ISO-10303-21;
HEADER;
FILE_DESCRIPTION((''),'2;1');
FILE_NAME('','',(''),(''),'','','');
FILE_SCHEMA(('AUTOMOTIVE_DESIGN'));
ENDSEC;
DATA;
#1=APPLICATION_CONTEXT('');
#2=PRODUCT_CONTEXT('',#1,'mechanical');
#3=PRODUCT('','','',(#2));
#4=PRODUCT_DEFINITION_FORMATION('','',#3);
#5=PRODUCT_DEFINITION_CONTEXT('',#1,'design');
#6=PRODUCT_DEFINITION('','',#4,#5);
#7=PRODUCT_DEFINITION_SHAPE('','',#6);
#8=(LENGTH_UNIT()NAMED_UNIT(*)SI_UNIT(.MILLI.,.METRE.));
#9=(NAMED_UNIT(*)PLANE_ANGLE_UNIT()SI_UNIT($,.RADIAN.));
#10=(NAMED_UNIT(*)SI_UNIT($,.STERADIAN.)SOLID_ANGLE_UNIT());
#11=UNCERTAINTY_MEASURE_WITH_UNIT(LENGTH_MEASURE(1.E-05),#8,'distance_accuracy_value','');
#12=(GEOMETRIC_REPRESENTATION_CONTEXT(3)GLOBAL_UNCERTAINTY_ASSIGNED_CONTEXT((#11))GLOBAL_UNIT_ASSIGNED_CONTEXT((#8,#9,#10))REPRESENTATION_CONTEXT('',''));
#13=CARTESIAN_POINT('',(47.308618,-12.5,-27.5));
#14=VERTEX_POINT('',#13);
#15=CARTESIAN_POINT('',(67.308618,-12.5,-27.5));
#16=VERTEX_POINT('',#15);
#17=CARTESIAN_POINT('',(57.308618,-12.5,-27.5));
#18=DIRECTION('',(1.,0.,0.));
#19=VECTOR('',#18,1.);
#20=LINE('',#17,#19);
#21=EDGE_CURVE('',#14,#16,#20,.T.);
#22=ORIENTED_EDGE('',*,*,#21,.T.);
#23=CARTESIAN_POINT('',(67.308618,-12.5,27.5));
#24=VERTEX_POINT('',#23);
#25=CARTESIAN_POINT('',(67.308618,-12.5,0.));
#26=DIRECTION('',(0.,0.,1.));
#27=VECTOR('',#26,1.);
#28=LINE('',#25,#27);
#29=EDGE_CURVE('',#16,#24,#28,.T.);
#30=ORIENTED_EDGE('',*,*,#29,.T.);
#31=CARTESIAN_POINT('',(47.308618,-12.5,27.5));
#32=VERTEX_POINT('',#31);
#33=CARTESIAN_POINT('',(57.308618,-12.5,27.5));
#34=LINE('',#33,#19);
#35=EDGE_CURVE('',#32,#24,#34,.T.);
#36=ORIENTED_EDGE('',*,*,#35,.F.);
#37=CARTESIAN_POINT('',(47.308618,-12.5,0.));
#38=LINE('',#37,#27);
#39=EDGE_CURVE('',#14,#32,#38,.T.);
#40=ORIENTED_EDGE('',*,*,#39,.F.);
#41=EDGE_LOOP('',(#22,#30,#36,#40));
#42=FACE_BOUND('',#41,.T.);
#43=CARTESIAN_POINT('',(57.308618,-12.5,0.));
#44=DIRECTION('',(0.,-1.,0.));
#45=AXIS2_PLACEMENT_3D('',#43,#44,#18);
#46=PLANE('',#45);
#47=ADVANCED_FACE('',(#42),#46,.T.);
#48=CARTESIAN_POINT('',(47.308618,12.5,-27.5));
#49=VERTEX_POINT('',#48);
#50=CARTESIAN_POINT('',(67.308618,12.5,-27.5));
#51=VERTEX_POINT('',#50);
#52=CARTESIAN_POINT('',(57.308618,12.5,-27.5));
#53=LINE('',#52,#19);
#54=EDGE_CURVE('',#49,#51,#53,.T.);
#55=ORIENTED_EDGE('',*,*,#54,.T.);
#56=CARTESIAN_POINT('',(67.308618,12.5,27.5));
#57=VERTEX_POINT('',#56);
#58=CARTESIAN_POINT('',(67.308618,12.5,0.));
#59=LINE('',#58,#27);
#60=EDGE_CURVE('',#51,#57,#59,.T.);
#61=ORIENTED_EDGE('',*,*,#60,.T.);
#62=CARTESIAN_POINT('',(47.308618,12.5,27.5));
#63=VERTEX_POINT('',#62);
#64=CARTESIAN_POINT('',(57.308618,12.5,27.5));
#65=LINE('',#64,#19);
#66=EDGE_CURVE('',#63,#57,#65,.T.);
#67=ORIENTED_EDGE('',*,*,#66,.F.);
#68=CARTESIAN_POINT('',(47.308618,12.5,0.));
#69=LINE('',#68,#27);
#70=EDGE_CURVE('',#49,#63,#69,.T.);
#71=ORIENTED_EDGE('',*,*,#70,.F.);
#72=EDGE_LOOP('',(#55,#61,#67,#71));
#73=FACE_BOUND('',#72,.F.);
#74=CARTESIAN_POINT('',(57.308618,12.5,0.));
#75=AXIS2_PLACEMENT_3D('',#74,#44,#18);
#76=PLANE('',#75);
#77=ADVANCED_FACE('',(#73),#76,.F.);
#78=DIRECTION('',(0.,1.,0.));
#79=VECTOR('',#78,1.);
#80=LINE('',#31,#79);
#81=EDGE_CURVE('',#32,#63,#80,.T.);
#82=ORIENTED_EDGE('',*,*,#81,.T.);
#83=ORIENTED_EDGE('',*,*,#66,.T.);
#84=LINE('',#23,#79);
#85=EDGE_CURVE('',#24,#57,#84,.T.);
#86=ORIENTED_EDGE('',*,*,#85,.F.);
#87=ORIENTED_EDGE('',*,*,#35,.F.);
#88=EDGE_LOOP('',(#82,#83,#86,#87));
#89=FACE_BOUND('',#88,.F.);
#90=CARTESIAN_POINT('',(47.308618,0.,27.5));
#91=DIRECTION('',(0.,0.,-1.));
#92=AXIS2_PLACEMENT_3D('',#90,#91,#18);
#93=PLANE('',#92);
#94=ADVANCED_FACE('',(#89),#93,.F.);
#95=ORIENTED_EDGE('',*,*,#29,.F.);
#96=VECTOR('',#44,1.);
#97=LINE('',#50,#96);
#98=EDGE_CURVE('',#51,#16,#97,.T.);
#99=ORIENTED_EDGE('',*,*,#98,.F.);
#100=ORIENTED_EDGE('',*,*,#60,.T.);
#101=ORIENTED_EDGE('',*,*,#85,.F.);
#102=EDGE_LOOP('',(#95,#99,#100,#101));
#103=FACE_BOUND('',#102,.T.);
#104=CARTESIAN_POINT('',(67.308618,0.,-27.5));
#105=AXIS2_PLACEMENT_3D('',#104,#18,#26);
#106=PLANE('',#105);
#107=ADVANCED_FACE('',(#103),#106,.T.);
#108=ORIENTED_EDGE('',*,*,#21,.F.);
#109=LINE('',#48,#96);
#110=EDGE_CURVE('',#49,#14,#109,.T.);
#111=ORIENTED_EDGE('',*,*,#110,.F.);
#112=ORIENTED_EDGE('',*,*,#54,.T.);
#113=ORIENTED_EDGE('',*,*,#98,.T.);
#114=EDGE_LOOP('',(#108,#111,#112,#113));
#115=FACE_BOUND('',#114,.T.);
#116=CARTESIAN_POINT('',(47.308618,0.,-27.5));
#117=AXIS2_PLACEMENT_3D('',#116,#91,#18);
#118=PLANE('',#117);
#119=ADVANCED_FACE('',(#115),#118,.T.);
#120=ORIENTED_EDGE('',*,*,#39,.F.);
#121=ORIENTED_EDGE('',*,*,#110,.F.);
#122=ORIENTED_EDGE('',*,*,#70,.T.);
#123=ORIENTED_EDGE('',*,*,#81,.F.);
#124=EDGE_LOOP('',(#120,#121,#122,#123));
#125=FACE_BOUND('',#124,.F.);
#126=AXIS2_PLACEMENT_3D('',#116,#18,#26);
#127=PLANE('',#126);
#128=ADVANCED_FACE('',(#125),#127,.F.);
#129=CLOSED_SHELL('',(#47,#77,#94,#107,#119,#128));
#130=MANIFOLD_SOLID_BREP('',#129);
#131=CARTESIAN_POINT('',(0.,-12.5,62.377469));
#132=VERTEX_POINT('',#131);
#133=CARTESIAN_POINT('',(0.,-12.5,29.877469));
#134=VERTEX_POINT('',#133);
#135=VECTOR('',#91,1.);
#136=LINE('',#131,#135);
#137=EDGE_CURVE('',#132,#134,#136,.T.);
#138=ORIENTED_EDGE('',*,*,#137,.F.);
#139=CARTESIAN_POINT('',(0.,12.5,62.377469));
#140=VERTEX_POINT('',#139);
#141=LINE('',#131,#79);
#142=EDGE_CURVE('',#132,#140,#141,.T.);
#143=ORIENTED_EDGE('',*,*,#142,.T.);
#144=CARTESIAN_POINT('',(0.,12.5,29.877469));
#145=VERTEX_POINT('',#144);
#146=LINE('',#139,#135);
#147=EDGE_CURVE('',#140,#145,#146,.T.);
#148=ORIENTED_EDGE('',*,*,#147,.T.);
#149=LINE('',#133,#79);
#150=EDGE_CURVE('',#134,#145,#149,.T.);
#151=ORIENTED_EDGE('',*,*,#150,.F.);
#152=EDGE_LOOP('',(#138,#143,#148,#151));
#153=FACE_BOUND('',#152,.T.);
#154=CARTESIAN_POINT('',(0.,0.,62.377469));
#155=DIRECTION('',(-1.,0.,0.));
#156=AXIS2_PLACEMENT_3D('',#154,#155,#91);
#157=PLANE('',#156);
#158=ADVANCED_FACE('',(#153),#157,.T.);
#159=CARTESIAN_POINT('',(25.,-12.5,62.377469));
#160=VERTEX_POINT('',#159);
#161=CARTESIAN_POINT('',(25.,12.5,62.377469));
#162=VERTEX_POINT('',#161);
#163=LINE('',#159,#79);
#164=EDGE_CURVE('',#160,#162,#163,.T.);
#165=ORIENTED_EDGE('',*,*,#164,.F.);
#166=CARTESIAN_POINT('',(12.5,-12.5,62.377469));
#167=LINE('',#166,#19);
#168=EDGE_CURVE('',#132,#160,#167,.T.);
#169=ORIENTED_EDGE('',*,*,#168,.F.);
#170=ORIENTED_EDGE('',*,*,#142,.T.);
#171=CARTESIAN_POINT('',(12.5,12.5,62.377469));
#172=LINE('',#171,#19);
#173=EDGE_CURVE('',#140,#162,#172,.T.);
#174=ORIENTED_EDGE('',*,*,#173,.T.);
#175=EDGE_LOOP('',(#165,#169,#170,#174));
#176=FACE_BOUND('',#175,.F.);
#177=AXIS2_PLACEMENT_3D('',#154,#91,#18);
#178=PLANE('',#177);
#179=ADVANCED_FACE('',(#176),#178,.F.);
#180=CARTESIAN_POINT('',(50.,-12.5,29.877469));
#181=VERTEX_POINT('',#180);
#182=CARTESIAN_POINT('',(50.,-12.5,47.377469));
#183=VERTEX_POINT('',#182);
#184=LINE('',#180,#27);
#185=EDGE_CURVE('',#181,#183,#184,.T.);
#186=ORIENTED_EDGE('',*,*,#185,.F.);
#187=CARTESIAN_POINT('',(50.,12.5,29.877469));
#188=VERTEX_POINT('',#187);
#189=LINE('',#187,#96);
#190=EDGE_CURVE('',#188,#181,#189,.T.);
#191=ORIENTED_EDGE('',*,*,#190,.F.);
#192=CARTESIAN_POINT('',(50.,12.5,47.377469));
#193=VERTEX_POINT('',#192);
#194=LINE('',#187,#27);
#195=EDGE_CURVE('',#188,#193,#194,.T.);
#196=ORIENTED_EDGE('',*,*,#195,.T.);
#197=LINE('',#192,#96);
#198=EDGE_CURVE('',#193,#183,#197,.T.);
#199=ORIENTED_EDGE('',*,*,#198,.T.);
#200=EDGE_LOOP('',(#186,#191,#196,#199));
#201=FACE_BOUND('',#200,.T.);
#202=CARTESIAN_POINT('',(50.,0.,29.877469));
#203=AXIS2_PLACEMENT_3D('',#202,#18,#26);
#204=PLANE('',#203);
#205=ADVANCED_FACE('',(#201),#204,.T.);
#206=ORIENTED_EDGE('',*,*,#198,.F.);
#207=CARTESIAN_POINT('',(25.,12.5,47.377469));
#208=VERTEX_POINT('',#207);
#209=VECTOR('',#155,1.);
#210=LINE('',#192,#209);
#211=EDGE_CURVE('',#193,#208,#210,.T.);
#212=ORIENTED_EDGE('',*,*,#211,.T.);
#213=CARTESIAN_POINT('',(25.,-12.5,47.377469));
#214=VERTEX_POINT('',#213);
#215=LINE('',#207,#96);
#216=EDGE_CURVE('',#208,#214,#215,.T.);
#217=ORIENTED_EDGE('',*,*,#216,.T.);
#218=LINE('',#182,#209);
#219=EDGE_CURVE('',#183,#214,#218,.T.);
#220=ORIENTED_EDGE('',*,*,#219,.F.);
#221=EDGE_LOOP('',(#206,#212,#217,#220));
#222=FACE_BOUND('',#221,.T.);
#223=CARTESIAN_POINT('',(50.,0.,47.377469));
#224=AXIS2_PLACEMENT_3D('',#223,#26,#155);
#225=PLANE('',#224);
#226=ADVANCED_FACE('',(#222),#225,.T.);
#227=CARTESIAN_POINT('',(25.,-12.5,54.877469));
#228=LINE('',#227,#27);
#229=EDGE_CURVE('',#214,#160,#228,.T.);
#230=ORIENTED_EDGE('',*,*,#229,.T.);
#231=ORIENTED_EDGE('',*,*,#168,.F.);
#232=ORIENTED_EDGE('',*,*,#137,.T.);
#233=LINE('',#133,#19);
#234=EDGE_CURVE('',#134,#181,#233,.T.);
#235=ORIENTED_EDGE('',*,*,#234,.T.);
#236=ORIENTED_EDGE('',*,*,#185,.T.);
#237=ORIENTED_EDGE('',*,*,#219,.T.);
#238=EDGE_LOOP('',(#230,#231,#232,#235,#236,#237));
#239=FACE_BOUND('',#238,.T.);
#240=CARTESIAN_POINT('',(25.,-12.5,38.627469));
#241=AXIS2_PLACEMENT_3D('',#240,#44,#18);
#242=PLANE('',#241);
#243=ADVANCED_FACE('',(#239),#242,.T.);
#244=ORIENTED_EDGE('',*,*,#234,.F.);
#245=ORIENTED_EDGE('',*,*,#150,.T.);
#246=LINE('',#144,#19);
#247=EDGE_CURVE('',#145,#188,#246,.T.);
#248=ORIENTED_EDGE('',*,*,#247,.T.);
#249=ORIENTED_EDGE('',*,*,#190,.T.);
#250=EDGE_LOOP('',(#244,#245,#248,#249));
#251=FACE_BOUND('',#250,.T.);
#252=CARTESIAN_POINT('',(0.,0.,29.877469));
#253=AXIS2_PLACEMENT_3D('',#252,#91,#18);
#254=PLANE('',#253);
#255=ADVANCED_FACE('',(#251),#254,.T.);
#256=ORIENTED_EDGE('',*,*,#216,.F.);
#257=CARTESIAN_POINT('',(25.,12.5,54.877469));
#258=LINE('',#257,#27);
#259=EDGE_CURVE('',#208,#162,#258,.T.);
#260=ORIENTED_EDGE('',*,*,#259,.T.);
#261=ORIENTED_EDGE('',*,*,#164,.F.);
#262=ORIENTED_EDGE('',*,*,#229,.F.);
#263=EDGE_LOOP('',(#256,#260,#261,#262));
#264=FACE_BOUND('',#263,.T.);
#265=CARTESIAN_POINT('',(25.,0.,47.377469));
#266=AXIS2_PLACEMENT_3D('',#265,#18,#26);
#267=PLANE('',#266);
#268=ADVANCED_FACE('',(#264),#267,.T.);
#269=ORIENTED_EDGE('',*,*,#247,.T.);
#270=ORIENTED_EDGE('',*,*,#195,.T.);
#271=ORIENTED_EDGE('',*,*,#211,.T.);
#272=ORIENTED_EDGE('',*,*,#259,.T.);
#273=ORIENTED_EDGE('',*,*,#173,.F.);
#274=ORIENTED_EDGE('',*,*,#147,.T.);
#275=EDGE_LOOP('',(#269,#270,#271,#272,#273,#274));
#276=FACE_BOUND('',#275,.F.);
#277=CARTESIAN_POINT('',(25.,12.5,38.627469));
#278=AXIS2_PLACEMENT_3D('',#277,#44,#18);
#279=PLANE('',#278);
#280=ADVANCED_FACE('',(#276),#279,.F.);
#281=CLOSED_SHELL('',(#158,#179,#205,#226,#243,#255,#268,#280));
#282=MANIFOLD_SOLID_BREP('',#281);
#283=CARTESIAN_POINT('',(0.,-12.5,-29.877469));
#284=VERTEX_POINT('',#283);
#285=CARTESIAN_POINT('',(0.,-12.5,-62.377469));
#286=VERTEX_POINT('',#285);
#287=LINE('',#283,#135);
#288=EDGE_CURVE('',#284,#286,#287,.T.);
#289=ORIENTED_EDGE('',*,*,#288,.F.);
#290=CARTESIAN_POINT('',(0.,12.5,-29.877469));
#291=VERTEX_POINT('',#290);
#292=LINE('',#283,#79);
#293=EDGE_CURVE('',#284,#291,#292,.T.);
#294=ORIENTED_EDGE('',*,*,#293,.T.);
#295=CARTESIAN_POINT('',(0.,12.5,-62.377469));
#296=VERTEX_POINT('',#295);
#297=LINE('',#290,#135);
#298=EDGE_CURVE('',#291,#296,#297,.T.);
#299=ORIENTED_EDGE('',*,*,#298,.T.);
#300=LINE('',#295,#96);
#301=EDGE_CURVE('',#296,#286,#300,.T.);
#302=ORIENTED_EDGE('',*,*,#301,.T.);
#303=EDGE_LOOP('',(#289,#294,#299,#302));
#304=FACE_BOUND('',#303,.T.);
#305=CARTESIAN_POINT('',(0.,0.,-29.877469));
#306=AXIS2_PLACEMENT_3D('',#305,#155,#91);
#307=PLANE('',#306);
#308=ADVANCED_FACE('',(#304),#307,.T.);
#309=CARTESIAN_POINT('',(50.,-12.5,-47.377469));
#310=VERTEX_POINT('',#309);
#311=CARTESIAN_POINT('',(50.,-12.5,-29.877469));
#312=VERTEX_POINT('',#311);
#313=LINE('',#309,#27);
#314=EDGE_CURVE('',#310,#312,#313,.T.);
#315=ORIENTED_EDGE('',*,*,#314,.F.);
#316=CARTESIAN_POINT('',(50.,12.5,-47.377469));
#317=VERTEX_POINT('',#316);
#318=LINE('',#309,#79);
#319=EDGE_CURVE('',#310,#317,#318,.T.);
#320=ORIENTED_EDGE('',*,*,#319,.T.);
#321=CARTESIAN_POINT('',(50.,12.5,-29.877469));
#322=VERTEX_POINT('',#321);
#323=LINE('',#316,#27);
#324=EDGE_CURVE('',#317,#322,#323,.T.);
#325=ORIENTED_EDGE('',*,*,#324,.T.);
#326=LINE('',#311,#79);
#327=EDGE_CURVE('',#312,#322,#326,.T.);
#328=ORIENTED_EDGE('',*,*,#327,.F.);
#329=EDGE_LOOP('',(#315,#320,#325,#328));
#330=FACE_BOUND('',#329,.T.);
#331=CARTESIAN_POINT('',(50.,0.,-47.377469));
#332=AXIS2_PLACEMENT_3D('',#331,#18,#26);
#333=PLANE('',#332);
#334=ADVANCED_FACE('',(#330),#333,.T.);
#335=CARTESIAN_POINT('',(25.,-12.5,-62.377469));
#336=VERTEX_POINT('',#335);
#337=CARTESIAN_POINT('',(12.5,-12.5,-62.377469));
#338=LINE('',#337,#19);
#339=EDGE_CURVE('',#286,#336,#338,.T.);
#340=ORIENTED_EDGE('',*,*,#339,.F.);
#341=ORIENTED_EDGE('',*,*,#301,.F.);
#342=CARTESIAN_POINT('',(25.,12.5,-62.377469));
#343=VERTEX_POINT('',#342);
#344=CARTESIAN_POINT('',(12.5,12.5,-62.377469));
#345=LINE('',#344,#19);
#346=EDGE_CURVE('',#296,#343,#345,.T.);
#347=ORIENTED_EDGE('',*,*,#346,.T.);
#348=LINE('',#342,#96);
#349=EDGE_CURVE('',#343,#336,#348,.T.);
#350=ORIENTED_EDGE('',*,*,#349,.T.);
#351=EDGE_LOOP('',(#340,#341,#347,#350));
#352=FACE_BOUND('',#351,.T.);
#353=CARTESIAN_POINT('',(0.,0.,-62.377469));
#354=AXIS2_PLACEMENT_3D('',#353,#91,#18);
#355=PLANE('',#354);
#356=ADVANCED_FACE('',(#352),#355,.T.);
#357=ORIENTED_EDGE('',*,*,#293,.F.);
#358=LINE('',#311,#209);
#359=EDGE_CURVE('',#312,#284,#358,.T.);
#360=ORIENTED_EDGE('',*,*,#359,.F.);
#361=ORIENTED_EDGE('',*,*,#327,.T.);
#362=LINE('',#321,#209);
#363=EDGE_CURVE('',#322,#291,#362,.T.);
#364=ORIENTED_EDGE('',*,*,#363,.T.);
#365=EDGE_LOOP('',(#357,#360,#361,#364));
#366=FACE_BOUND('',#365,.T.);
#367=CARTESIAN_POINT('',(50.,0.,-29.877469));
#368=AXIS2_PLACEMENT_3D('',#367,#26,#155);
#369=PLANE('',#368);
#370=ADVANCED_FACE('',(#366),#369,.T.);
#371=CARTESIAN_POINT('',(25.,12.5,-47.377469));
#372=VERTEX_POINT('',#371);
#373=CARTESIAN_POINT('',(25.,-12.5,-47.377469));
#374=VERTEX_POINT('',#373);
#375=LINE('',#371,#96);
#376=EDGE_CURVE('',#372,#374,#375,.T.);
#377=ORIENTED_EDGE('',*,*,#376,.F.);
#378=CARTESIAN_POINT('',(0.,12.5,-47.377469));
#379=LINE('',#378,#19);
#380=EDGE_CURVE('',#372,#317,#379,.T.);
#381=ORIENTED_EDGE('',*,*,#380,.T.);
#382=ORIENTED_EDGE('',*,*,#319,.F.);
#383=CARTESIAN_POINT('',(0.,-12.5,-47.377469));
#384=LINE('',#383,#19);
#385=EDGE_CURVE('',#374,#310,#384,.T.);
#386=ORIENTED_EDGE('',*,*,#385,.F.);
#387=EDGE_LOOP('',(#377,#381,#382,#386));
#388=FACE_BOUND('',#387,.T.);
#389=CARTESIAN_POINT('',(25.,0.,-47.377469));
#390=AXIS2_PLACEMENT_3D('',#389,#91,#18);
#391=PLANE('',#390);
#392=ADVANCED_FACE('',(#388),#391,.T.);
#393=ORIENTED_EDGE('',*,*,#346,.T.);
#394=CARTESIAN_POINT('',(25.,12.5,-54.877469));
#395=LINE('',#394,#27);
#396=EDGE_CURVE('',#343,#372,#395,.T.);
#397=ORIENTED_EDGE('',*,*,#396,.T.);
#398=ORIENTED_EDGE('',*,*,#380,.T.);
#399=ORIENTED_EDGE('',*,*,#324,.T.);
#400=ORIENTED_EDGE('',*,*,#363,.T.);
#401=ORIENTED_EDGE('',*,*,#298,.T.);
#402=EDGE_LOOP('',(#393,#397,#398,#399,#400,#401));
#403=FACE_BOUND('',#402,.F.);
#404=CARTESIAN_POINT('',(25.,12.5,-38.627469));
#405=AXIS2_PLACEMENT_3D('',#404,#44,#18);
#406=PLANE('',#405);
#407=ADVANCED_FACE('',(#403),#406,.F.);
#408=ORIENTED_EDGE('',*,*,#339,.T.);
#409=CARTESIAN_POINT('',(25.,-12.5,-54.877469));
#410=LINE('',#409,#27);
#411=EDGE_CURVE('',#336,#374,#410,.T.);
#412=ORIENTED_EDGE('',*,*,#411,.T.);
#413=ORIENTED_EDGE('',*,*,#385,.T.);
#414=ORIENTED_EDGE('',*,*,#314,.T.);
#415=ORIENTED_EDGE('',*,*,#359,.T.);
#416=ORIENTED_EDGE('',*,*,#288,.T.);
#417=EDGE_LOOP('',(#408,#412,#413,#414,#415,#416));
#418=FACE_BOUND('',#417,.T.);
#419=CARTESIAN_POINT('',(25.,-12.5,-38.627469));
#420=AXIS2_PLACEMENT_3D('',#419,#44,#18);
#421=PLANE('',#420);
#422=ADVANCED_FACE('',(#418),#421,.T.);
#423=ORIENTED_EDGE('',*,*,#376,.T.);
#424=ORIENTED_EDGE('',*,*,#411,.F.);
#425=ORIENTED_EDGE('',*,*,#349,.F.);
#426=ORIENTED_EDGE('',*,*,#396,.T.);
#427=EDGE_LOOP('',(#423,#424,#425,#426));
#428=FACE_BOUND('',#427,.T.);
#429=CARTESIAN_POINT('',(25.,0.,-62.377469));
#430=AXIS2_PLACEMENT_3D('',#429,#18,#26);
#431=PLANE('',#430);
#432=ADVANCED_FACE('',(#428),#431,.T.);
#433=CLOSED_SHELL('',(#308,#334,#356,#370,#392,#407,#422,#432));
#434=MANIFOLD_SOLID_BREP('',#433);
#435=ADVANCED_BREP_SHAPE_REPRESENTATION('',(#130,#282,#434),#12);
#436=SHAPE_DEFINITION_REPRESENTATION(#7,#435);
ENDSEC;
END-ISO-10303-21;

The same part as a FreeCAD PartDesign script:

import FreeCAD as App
import Part
import Sketcher
from FreeCAD import Vector

doc = App.newDocument("Part")
body = doc.addObject("PartDesign::Body", "Body")

sketch1 = body.newObject("Sketcher::SketchObject", "Sketch")
sketch1.AttachmentSupport = (doc.getObject("XZ_Plane"), [""])
sketch1.MapMode = "FlatFace"
sketch1.addGeometry([
    Part.LineSegment(Vector(0, 29.877469, 0), Vector(50, 29.877469, 0)),
    Part.LineSegment(Vector(50, 29.877469, 0), Vector(50, 47.377469, 0)),
    Part.LineSegment(Vector(50, 47.377469, 0), Vector(25, 47.377469, 0)),
    Part.LineSegment(Vector(25, 47.377469, 0), Vector(25, 62.377469, 0)),
    Part.LineSegment(Vector(25, 62.377469, 0), Vector(0, 62.377469, 0)),
    Part.LineSegment(Vector(0, 62.377469, 0), Vector(0, 29.877469, 0)),
], False)
sketch1.addConstraint([
    Sketcher.Constraint("Coincident", 0, 2, 1, 1),
    Sketcher.Constraint("Coincident", 1, 2, 2, 1),
    Sketcher.Constraint("Coincident", 2, 2, 3, 1),
    Sketcher.Constraint("Coincident", 3, 2, 4, 1),
    Sketcher.Constraint("Coincident", 4, 2, 5, 1),
    Sketcher.Constraint("Coincident", 5, 2, 0, 1),
    Sketcher.Constraint("Horizontal", 0),
    Sketcher.Constraint("Vertical", 1),
    Sketcher.Constraint("Horizontal", 2),
    Sketcher.Constraint("Vertical", 3),
    Sketcher.Constraint("Horizontal", 4),
    Sketcher.Constraint("Vertical", 5),
    Sketcher.Constraint("PointOnObject", 4, 2, -2),
    Sketcher.Constraint("Equal", 2, 4),
    Sketcher.Constraint("DistanceX", 0, 1, 0, 2, 50.0),
    Sketcher.Constraint("DistanceY", 3, 1, 3, 2, 15.0),
    Sketcher.Constraint("DistanceY", 1, 1, 1, 2, 17.5),
    Sketcher.Constraint("DistanceY", -1, 1, 0, 2, 29.877469),
])
pad1 = body.newObject("PartDesign::Pad", "Pad")
pad1.Profile = sketch1
pad1.Length = 25
pad1.Midplane = True
body2 = doc.addObject("PartDesign::Body", "Body001")

sketch2 = body2.newObject("Sketcher::SketchObject", "Sketch001")
sketch2.AttachmentSupport = (doc.getObject("XZ_Plane001"), [""])
sketch2.MapMode = "FlatFace"
sketch2.addGeometry([
    Part.LineSegment(Vector(0, -29.877469, 0), Vector(0, -62.377469, 0)),
    Part.LineSegment(Vector(0, -62.377469, 0), Vector(25, -62.377469, 0)),
    Part.LineSegment(Vector(25, -62.377469, 0), Vector(25, -47.377469, 0)),
    Part.LineSegment(Vector(25, -47.377469, 0), Vector(50, -47.377469, 0)),
    Part.LineSegment(Vector(50, -47.377469, 0), Vector(50, -29.877469, 0)),
    Part.LineSegment(Vector(50, -29.877469, 0), Vector(0, -29.877469, 0)),
], False)
sketch2.addConstraint([
    Sketcher.Constraint("Coincident", 0, 2, 1, 1),
    Sketcher.Constraint("Coincident", 1, 2, 2, 1),
    Sketcher.Constraint("Coincident", 2, 2, 3, 1),
    Sketcher.Constraint("Coincident", 3, 2, 4, 1),
    Sketcher.Constraint("Coincident", 4, 2, 5, 1),
    Sketcher.Constraint("Coincident", 5, 2, 0, 1),
    Sketcher.Constraint("Vertical", 0),
    Sketcher.Constraint("Horizontal", 1),
    Sketcher.Constraint("Vertical", 2),
    Sketcher.Constraint("Horizontal", 3),
    Sketcher.Constraint("Vertical", 4),
    Sketcher.Constraint("Horizontal", 5),
    Sketcher.Constraint("PointOnObject", 0, 2, -2),
    Sketcher.Constraint("Equal", 1, 3),
    Sketcher.Constraint("DistanceX", 1, 1, 1, 2, 25.0),
    Sketcher.Constraint("DistanceY", 2, 1, 2, 2, 15.0),
    Sketcher.Constraint("DistanceY", 0, 2, 0, 1, 32.5),
    Sketcher.Constraint("DistanceY", 0, 2, -1, 1, 62.377469),
])
pad2 = body2.newObject("PartDesign::Pad", "Pad001")
pad2.Profile = sketch2
pad2.Length = 25
pad2.Midplane = True
body3 = doc.addObject("PartDesign::Body", "Body002")

sketch3 = body3.newObject("Sketcher::SketchObject", "Sketch002")
sketch3.AttachmentSupport = (doc.getObject("XZ_Plane002"), [""])
sketch3.MapMode = "FlatFace"
sketch3.addGeometry([
    Part.LineSegment(Vector(47.308618, 27.5, 0), Vector(47.308618, -27.5, 0)),
    Part.LineSegment(Vector(47.308618, -27.5, 0), Vector(67.308618, -27.5, 0)),
    Part.LineSegment(Vector(67.308618, -27.5, 0), Vector(67.308618, 27.5, 0)),
    Part.LineSegment(Vector(67.308618, 27.5, 0), Vector(47.308618, 27.5, 0)),
], False)
sketch3.addConstraint([
    Sketcher.Constraint("Coincident", 0, 2, 1, 1),
    Sketcher.Constraint("Coincident", 1, 2, 2, 1),
    Sketcher.Constraint("Coincident", 2, 2, 3, 1),
    Sketcher.Constraint("Coincident", 3, 2, 0, 1),
    Sketcher.Constraint("Vertical", 0),
    Sketcher.Constraint("Horizontal", 1),
    Sketcher.Constraint("Vertical", 2),
    Sketcher.Constraint("Horizontal", 3),
    Sketcher.Constraint("DistanceX", 1, 1, 1, 2, 20.0),
    Sketcher.Constraint("DistanceY", 0, 2, 0, 1, 55.0),
    Sketcher.Constraint("DistanceY", 0, 2, -1, 1, 27.5),
    Sketcher.Constraint("DistanceX", -1, 1, 0, 2, 47.308618),
])
pad3 = body3.newObject("PartDesign::Pad", "Pad002")
pad3.Profile = sketch3
pad3.Length = 25
pad3.Midplane = True

doc.recompute()
